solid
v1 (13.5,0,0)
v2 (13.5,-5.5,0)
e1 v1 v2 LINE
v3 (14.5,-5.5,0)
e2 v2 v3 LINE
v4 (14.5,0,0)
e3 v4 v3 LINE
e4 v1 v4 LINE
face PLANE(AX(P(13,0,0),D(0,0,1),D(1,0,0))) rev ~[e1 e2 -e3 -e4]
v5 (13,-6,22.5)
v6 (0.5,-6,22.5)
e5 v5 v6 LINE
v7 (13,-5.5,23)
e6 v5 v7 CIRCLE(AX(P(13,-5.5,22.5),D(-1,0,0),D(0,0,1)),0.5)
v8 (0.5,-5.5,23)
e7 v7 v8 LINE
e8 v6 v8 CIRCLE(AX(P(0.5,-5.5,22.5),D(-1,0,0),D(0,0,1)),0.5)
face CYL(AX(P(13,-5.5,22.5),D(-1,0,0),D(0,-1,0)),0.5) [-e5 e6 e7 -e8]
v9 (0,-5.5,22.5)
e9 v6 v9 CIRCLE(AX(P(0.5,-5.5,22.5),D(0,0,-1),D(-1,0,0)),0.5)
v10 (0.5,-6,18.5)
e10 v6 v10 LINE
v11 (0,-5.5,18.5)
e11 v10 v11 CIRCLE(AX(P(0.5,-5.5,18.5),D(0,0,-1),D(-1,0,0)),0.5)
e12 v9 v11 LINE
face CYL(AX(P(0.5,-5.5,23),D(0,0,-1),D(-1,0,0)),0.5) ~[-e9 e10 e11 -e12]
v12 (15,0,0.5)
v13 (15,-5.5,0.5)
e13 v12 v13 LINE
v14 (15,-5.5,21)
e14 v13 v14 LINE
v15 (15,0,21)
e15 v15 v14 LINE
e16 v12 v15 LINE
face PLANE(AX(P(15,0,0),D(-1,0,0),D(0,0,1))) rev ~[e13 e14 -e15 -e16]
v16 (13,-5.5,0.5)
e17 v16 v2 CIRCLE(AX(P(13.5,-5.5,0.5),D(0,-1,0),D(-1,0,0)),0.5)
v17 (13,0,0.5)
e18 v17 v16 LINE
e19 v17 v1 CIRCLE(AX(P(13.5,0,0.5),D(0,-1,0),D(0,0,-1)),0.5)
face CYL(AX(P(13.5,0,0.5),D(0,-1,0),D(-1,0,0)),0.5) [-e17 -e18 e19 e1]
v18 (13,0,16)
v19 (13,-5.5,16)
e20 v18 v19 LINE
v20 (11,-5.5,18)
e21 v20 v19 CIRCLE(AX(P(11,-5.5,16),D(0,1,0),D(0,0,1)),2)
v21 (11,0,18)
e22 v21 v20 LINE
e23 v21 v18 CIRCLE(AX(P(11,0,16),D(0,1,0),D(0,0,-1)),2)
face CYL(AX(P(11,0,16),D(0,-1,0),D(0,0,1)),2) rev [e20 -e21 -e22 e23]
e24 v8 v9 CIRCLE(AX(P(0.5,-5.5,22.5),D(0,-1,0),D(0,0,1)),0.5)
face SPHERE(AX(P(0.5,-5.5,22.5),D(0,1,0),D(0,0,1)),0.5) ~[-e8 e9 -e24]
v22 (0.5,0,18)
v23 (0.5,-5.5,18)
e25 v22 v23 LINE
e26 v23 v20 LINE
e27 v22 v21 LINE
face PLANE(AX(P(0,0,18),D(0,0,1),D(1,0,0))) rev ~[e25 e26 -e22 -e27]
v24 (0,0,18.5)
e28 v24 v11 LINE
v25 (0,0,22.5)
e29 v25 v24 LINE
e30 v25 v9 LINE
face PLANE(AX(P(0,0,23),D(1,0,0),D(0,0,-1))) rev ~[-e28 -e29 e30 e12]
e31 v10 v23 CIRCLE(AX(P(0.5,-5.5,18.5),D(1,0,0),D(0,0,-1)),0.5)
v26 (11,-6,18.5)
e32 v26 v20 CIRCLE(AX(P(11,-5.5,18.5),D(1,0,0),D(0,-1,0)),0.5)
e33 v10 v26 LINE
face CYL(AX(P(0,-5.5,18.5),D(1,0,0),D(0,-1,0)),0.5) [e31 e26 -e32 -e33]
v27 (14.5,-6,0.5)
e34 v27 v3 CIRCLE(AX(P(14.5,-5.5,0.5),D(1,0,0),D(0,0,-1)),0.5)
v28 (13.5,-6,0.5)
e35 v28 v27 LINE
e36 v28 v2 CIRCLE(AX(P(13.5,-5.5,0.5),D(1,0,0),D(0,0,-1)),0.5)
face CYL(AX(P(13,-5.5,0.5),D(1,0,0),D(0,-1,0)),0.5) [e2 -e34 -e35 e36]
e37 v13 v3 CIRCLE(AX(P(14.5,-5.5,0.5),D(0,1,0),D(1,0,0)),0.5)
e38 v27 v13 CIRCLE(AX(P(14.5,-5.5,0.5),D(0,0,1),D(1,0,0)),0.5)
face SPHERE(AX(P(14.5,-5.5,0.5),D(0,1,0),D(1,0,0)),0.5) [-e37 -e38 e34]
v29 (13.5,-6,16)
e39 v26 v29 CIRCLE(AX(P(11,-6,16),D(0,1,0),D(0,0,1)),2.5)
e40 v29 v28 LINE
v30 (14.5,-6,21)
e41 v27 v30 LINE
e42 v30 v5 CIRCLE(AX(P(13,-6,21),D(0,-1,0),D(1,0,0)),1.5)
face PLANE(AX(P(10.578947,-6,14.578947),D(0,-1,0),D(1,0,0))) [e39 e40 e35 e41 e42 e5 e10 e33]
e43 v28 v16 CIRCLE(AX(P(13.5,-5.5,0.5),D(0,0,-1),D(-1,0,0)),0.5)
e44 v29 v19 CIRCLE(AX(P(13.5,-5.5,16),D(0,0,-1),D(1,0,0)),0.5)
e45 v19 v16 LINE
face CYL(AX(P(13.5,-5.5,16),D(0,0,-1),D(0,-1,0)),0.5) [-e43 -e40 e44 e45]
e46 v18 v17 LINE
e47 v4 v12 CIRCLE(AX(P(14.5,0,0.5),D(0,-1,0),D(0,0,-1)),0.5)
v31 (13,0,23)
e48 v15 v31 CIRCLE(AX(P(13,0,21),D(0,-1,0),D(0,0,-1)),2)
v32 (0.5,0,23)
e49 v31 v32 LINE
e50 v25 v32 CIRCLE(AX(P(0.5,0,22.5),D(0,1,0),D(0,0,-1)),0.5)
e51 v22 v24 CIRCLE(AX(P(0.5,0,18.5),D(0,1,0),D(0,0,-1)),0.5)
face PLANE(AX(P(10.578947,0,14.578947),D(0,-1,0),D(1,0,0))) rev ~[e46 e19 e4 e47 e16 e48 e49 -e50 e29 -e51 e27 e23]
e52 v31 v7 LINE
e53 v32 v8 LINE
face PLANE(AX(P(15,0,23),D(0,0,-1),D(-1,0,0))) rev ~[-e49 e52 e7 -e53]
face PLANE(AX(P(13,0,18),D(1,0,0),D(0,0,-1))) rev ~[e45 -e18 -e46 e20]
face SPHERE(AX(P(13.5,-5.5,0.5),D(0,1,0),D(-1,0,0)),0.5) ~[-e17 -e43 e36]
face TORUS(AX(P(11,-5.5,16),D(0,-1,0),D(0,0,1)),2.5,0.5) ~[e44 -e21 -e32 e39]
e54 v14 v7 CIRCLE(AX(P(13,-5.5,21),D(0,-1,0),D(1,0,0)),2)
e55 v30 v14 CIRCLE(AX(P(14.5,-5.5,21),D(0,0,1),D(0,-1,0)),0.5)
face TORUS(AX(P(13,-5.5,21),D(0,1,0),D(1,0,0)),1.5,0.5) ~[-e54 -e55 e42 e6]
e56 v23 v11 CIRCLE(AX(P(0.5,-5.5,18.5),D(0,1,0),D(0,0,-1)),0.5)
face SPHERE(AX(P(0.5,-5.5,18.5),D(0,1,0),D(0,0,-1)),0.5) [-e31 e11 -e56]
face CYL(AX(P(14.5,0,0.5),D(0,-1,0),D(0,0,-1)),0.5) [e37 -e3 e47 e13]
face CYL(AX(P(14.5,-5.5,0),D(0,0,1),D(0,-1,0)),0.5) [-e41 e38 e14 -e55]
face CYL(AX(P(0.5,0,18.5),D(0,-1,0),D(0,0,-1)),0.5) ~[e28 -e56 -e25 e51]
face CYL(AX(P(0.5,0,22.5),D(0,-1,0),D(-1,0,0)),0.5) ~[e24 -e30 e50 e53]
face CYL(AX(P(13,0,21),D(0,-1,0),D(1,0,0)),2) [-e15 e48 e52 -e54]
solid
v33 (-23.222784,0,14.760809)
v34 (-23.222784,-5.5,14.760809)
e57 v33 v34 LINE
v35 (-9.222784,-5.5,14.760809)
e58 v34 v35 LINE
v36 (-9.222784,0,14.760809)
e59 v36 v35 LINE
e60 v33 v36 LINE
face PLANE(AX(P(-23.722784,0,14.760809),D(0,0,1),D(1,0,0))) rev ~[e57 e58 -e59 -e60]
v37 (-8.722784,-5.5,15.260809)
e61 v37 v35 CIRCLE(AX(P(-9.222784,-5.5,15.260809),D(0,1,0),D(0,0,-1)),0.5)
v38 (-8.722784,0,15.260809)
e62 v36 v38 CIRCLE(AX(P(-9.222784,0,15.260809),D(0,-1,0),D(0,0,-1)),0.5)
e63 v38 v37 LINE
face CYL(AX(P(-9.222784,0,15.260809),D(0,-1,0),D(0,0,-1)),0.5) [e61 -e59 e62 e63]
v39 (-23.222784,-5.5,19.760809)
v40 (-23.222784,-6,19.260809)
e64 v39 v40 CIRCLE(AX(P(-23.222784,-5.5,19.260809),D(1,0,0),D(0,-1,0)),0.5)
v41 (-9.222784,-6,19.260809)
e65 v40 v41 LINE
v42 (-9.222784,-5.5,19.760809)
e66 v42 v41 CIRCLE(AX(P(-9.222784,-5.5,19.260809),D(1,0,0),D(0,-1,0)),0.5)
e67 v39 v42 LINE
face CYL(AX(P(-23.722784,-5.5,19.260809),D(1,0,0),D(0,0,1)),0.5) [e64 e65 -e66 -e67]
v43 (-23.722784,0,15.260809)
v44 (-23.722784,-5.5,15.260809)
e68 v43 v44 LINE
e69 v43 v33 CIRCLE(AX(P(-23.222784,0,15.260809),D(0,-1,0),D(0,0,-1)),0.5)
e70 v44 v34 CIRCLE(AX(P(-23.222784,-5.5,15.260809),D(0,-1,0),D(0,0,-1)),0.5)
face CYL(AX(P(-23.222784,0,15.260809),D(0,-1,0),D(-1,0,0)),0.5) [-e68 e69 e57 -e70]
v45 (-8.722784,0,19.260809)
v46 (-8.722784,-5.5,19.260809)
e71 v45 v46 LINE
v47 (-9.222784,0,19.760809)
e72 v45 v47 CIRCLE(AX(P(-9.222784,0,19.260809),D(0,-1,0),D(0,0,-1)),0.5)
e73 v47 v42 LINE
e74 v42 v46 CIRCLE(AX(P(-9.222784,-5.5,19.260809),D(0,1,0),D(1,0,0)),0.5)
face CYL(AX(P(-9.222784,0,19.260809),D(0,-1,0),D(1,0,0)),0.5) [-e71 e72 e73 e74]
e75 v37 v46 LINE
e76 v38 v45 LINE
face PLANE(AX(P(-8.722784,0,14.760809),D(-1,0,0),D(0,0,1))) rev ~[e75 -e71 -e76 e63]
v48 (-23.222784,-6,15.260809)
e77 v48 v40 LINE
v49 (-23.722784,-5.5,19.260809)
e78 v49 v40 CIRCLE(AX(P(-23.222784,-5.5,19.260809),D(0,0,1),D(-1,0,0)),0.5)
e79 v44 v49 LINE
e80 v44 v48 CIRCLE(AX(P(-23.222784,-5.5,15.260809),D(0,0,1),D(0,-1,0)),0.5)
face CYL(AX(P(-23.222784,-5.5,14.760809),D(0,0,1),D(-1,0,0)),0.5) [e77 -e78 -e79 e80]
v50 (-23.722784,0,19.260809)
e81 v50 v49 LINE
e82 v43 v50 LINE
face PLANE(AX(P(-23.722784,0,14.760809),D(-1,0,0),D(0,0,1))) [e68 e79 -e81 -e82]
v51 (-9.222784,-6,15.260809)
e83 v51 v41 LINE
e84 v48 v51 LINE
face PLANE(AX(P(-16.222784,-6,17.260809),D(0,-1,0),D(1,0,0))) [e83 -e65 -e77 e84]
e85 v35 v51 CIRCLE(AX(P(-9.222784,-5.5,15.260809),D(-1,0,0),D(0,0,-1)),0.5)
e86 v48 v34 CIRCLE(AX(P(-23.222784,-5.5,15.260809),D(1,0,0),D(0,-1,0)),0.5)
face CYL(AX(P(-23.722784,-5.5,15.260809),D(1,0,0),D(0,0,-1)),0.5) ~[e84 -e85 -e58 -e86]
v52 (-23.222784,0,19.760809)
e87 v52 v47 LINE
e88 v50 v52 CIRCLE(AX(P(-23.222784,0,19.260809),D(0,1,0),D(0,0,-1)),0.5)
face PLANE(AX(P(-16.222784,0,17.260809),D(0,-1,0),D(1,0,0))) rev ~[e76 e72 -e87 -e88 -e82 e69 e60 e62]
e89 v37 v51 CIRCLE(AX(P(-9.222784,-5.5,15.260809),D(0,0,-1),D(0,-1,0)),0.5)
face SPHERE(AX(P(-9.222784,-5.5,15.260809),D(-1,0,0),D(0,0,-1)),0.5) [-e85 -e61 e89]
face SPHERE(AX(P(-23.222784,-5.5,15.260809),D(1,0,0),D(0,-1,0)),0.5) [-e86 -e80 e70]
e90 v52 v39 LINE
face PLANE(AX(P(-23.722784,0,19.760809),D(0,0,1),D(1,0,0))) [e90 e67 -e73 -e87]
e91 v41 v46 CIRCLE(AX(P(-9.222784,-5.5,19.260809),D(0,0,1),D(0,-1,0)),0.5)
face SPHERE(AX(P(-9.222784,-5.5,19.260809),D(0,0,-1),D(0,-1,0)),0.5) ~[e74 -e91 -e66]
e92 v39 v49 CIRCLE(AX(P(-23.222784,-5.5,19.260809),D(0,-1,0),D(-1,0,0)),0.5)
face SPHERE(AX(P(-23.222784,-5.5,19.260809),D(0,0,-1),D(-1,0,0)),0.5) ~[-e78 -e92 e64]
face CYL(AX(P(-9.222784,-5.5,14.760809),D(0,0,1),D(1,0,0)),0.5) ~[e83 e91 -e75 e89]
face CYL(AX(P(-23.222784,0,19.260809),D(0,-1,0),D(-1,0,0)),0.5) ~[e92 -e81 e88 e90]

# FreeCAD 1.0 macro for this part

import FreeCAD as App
import Part
import Sketcher
Q = App.Units.Quantity


def edges_at(feature, points):
    """Names of the edges that pass closest to the given points."""
    edges = feature.Shape.Edges
    near = lambda p: min(range(len(edges)), key=lambda i: edges[i].distToShape(Part.Vertex(*p))[0])
    return sorted({f"Edge{near(p) + 1}" for p in points})


def add_polygon(sketch, points):
    """Adds a closed chain of lines whose ends are joined by coincident constraints."""
    first, n = sketch.GeometryCount, len(points)
    for a, b in zip(points, points[1:] + points[:1]):
        sketch.addGeometry(Part.LineSegment(App.Vector(*a, 0), App.Vector(*b, 0)), False)
    for i in range(n):
        sketch.addConstraint(Sketcher.Constraint("Coincident", first + i, 2, first + (i + 1) % n, 1))

doc = App.newDocument("Part")
body = doc.addObject("PartDesign::Body", "Body")
body.AllowCompound = True

sketch1 = body.newObject("Sketcher::SketchObject", "Sketch")
sketch1.AttachmentSupport = (doc.getObject("XZ_Plane"), [""])
sketch1.MapMode = "FlatFace"
add_polygon(sketch1, [(0, 23), (0, 18), (13, 18), (13, 0), (15, 0), (15, 23)])
add_polygon(sketch1, [(-23.7, 19.8), (-23.7, 14.8), (-8.7, 14.8), (-8.7, 19.8)])
sketch1.addConstraint([
    Sketcher.Constraint("Vertical", 0),
    Sketcher.Constraint("Horizontal", 1),
    Sketcher.Constraint("Vertical", 2),
    Sketcher.Constraint("Horizontal", 3),
    Sketcher.Constraint("Vertical", 4),
    Sketcher.Constraint("Horizontal", 5),
    Sketcher.Constraint("Vertical", 6),
    Sketcher.Constraint("Horizontal", 7),
    Sketcher.Constraint("Vertical", 8),
    Sketcher.Constraint("Horizontal", 9),
    Sketcher.Constraint("PointOnObject", 0, 2, -2),
    Sketcher.Constraint("PointOnObject", 2, 2, -1),
    Sketcher.Constraint("Equal", 5, 7),
    Sketcher.Constraint("Equal", 0, 6),
    Sketcher.Constraint("DistanceX", 1, 1, 1, 2, Q("13 mm")),
    Sketcher.Constraint("DistanceX", 3, 1, 3, 2, Q("2 mm")),
    Sketcher.Constraint("DistanceY", 0, 2, 0, 1, Q("5 mm")),
    Sketcher.Constraint("DistanceY", 2, 2, 2, 1, Q("18 mm")),
    Sketcher.Constraint("DistanceY", -1, 1, 6, 2, Q("14.760809 mm")),
    Sketcher.Constraint("DistanceX", 6, 2, -1, 1, Q("23.722784 mm")),
])
pad1 = body.newObject("PartDesign::Pad", "Pad")
pad1.Profile = sketch1
pad1.Length = 6
doc.recompute()

fillet = body.newObject("PartDesign::Fillet", "Fillet")
fillet.Base = (pad1, edges_at(pad1, [(15, -3, 23), (13, -3, 18)]))
fillet.Radius = 2
doc.recompute()

fillet2 = body.newObject("PartDesign::Fillet", "Fillet001")
fillet2.Base = (fillet, edges_at(fillet, [
    (0, -3, 23),
    (0, -3, 18),
    (13, -3, 0),
    (15, -3, 0),
    (13, -6, 8),
    (15, -6, 10.5),
    (-16.223, -6, 14.761),
    (-23.723, -6, 17.261),
    (-23.723, -3, 14.761),
    (-23.723, -3, 19.761),
    (-8.723, -3, 14.761),
    (-8.723, -6, 17.261),
    (-16.223, -6, 19.761),
    (-8.723, -3, 19.761),
    (0, -6, 20.5),
    (14, -6, 0),
]))
fillet2.Radius = 0.5

doc.recompute()
